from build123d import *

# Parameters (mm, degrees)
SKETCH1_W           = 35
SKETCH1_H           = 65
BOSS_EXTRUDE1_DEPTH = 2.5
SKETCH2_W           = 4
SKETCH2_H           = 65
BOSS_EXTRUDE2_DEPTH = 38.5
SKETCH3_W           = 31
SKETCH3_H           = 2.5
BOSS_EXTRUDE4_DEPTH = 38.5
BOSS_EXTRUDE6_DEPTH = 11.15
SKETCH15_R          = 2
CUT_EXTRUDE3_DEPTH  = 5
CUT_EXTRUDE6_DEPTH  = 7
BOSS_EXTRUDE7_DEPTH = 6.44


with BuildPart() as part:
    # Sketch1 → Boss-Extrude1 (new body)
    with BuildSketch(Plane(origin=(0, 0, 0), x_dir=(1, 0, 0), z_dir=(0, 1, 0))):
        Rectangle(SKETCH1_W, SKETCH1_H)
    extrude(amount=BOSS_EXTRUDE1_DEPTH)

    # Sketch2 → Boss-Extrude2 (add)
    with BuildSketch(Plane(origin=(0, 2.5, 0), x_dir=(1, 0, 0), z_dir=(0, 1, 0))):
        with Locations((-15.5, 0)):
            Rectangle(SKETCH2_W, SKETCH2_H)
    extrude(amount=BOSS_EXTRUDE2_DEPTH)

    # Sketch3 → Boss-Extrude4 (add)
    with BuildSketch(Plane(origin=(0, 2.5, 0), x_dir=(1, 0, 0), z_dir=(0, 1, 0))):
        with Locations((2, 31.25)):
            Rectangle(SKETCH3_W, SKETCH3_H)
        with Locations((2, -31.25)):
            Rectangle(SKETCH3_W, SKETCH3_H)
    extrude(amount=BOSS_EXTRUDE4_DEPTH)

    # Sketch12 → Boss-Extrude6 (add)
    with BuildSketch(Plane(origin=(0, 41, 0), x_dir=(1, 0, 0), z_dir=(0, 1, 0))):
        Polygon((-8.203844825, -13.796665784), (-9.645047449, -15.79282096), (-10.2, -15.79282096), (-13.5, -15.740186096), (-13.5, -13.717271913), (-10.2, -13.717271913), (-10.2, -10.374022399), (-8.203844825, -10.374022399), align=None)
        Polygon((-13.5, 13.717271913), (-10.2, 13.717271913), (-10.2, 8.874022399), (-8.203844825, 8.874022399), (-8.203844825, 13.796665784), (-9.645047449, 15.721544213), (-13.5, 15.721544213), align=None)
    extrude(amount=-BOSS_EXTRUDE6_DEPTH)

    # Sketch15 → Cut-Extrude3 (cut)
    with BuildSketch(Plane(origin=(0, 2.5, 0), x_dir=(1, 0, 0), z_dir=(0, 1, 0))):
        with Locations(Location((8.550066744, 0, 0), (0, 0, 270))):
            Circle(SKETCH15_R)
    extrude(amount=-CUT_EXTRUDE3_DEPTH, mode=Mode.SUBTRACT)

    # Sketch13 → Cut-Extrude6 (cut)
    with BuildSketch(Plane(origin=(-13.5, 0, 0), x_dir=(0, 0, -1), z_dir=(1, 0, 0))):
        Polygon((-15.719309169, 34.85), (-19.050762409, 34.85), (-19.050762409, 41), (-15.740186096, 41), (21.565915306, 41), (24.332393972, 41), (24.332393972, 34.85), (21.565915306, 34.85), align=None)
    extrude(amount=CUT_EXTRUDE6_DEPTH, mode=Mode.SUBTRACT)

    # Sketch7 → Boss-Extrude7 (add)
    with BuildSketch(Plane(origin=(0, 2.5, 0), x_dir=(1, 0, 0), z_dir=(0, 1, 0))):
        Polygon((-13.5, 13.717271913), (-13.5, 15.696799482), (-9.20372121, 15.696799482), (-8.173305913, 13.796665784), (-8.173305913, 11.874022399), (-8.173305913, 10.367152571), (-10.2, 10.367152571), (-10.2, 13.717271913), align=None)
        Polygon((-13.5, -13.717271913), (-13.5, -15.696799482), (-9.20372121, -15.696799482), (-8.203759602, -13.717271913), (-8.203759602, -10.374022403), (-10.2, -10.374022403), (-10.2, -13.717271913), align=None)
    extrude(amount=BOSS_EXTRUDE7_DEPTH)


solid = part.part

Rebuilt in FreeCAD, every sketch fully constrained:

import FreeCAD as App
import Part
import Sketcher

V = App.Vector

doc = App.newDocument("Part")
body = doc.addObject("PartDesign::Body", "Body")

# Sketch on XZ plane
sketch1 = body.newObject("Sketcher::SketchObject", "Sketch")
sketch1.AttachmentSupport = (doc.getObject("XZ_Plane"), [""])
sketch1.MapMode = "FlatFace"
sketch1.addGeometry(Part.LineSegment(V(-18, -32, 0), V(-18, 32, 0)), False)
sketch1.addGeometry(Part.LineSegment(V(-18, 32, 0), V(18, 32, 0)), False)
sketch1.addGeometry(Part.LineSegment(V(18, 32, 0), V(18, -32, 0)), False)
sketch1.addGeometry(Part.LineSegment(V(18, -32, 0), V(-18, -32, 0)), False)
sketch1.addConstraint(Sketcher.Constraint("Coincident", 0, 2, 1, 1))
sketch1.addConstraint(Sketcher.Constraint("Coincident", 1, 2, 2, 1))
sketch1.addConstraint(Sketcher.Constraint("Coincident", 2, 2, 3, 1))
sketch1.addConstraint(Sketcher.Constraint("Coincident", 3, 2, 0, 1))
sketch1.addConstraint(Sketcher.Constraint("Vertical", 0))
sketch1.addConstraint(Sketcher.Constraint("Horizontal", 1))
sketch1.addConstraint(Sketcher.Constraint("Vertical", 2))
sketch1.addConstraint(Sketcher.Constraint("Horizontal", 3))
sketch1.addConstraint(Sketcher.Constraint("Symmetric", 0, 2, 2, 2, -1, 1))
sketch1.addConstraint(Sketcher.Constraint("DistanceX", 1, 1, 1, 2, 35.0))
sketch1.addConstraint(Sketcher.Constraint("DistanceY", 0, 1, 0, 2, 65.0))
pad1 = body.newObject("PartDesign::Pad", "Pad")
pad1.Profile = sketch1
pad1.Length = 2.5
pad1.Reversed = True

# Sketch on XZ plane
sketch2 = body.newObject("Sketcher::SketchObject", "Sketch001")
sketch2.AttachmentSupport = (doc.getObject("XZ_Plane"), [""])
sketch2.MapMode = "FlatFace"
sketch2.AttachmentOffset = App.Placement(V(0, 0, -2.5), App.Rotation())
sketch2.addGeometry(Part.LineSegment(V(-17.5, -32.5, 0), V(-17.5, 32.5, 0)), False)
sketch2.addGeometry(Part.LineSegment(V(-17.5, 32.5, 0), V(-13.5, 32.5, 0)), False)
sketch2.addGeometry(Part.LineSegment(V(-13.5, 32.5, 0), V(-13.5, -32.5, 0)), False)
sketch2.addGeometry(Part.LineSegment(V(-13.5, -32.5, 0), V(-17.5, -32.5, 0)), False)
sketch2.addConstraint(Sketcher.Constraint("Coincident", 0, 2, 1, 1))
sketch2.addConstraint(Sketcher.Constraint("Coincident", 1, 2, 2, 1))
sketch2.addConstraint(Sketcher.Constraint("Coincident", 2, 2, 3, 1))
sketch2.addConstraint(Sketcher.Constraint("Coincident", 3, 2, 0, 1))
sketch2.addConstraint(Sketcher.Constraint("Vertical", 0))
sketch2.addConstraint(Sketcher.Constraint("Horizontal", 1))
sketch2.addConstraint(Sketcher.Constraint("Vertical", 2))
sketch2.addConstraint(Sketcher.Constraint("Horizontal", 3))
sketch2.addConstraint(Sketcher.Constraint("DistanceX", 1, 1, 1, 2, 4.0))
sketch2.addConstraint(Sketcher.Constraint("DistanceY", 0, 1, 0, 2, 65.0))
sketch2.addConstraint(Sketcher.Constraint("DistanceX", 0, 2, -1, 1, 17.5))
sketch2.addConstraint(Sketcher.Constraint("DistanceY", -1, 1, 0, 2, 32.5))
pad2 = body.newObject("PartDesign::Pad", "Pad001")
pad2.Profile = sketch2
pad2.Length = 38.5
pad2.Reversed = True

# Sketch on XZ plane
sketch3 = body.newObject("Sketcher::SketchObject", "Sketch002")
sketch3.AttachmentSupport = (doc.getObject("XZ_Plane"), [""])
sketch3.MapMode = "FlatFace"
sketch3.AttachmentOffset = App.Placement(V(0, 0, -2.5), App.Rotation())
sketch3.addGeometry(Part.LineSegment(V(-13.5, -32.5, 0), V(-13.5, -30, 0)), False)
sketch3.addGeometry(Part.LineSegment(V(-13.5, -30, 0), V(17.5, -30, 0)), False)
sketch3.addGeometry(Part.LineSegment(V(17.5, -30, 0), V(17.5, -32.5, 0)), False)
sketch3.addGeometry(Part.LineSegment(V(17.5, -32.5, 0), V(-13.5, -32.5, 0)), False)
sketch3.addGeometry(Part.LineSegment(V(-13.5, 30, 0), V(-13.5, 32.5, 0)), False)
sketch3.addGeometry(Part.LineSegment(V(-13.5, 32.5, 0), V(17.5, 32.5, 0)), False)
sketch3.addGeometry(Part.LineSegment(V(17.5, 32.5, 0), V(17.5, 30, 0)), False)
sketch3.addGeometry(Part.LineSegment(V(17.5, 30, 0), V(-13.5, 30, 0)), False)
sketch3.addConstraint(Sketcher.Constraint("Coincident", 0, 2, 1, 1))
sketch3.addConstraint(Sketcher.Constraint("Coincident", 1, 2, 2, 1))
sketch3.addConstraint(Sketcher.Constraint("Coincident", 2, 2, 3, 1))
sketch3.addConstraint(Sketcher.Constraint("Coincident", 3, 2, 0, 1))
sketch3.addConstraint(Sketcher.Constraint("Coincident", 4, 2, 5, 1))
sketch3.addConstraint(Sketcher.Constraint("Coincident", 5, 2, 6, 1))
sketch3.addConstraint(Sketcher.Constraint("Coincident", 6, 2, 7, 1))
sketch3.addConstraint(Sketcher.Constraint("Coincident", 7, 2, 4, 1))
sketch3.addConstraint(Sketcher.Constraint("Vertical", 0))
sketch3.addConstraint(Sketcher.Constraint("Horizontal", 1))
sketch3.addConstraint(Sketcher.Constraint("Vertical", 2))
sketch3.addConstraint(Sketcher.Constraint("Horizontal", 3))
sketch3.addConstraint(Sketcher.Constraint("Vertical", 4))
sketch3.addConstraint(Sketcher.Constraint("Horizontal", 5))
sketch3.addConstraint(Sketcher.Constraint("Vertical", 6))
sketch3.addConstraint(Sketcher.Constraint("Horizontal", 7))
sketch3.addConstraint(Sketcher.Constraint("Symmetric", 3, 2, 4, 2, -1))
sketch3.addConstraint(Sketcher.Constraint("Symmetric", 1, 2, 6, 2, -1))
sketch3.addConstraint(Sketcher.Constraint("DistanceX", 1, 1, 1, 2, 31.0))
sketch3.addConstraint(Sketcher.Constraint("DistanceY", 0, 1, 0, 2, 2.5))
sketch3.addConstraint(Sketcher.Constraint("DistanceY", 0, 2, -1, 1, 30.0))
sketch3.addConstraint(Sketcher.Constraint("DistanceX", 0, 2, -1, 1, 13.5))
pad3 = body.newObject("PartDesign::Pad", "Pad002")
pad3.Profile = sketch3
pad3.Length = 38.5
pad3.Reversed = True

# Sketch on XZ plane
sketch4 = body.newObject("Sketcher::SketchObject", "Sketch003")
sketch4.AttachmentSupport = (doc.getObject("XZ_Plane"), [""])
sketch4.MapMode = "FlatFace"
sketch4.AttachmentOffset = App.Placement(V(0, 0, -41), App.Rotation())
sketch4.addGeometry(Part.LineSegment(V(-9.6, 15.8, 0), V(-8.2, 13.8, 0)), False)
sketch4.addGeometry(Part.LineSegment(V(-8.2, 13.8, 0), V(-8.2, 10.4, 0)), False)
sketch4.addGeometry(Part.LineSegment(V(-8.2, 10.4, 0), V(-10.2, 10.4, 0)), False)
sketch4.addGeometry(Part.LineSegment(V(-10.2, 10.4, 0), V(-10.2, 13.7, 0)), False)
sketch4.addGeometry(Part.LineSegment(V(-10.2, 13.7, 0), V(-13.5, 13.7, 0)), False)
sketch4.addGeometry(Part.LineSegment(V(-13.5, 13.7, 0), V(-13.5, 15.7, 0)), False)
sketch4.addGeometry(Part.LineSegment(V(-13.5, 15.7, 0), V(-10.2, 15.8, 0)), False)
sketch4.addGeometry(Part.LineSegment(V(-10.2, 15.8, 0), V(-9.6, 15.8, 0)), False)
sketch4.addGeometry(Part.LineSegment(V(-13.5, -13.7, 0), V(-10.2, -13.7, 0)), False)
sketch4.addGeometry(Part.LineSegment(V(-10.2, -13.7, 0), V(-10.2, -8.9, 0)), False)
sketch4.addGeometry(Part.LineSegment(V(-10.2, -8.9, 0), V(-8.2, -8.9, 0)), False)
sketch4.addGeometry(Part.LineSegment(V(-8.2, -8.9, 0), V(-8.2, -13.8, 0)), False)
sketch4.addGeometry(Part.LineSegment(V(-8.2, -13.8, 0), V(-9.6, -15.7, 0)), False)
sketch4.addGeometry(Part.LineSegment(V(-9.6, -15.7, 0), V(-13.5, -15.7, 0)), False)
sketch4.addGeometry(Part.LineSegment(V(-13.5, -15.7, 0), V(-13.5, -13.7, 0)), False)
sketch4.addConstraint(Sketcher.Constraint("Coincident", 0, 2, 1, 1))
sketch4.addConstraint(Sketcher.Constraint("Coincident", 1, 2, 2, 1))
sketch4.addConstraint(Sketcher.Constraint("Coincident", 2, 2, 3, 1))
sketch4.addConstraint(Sketcher.Constraint("Coincident", 3, 2, 4, 1))
sketch4.addConstraint(Sketcher.Constraint("Coincident", 4, 2, 5, 1))
sketch4.addConstraint(Sketcher.Constraint("Coincident", 5, 2, 6, 1))
sketch4.addConstraint(Sketcher.Constraint("Coincident", 6, 2, 7, 1))
sketch4.addConstraint(Sketcher.Constraint("Coincident", 7, 2, 0, 1))
sketch4.addConstraint(Sketcher.Constraint("Coincident", 8, 2, 9, 1))
sketch4.addConstraint(Sketcher.Constraint("Coincident", 9, 2, 10, 1))
sketch4.addConstraint(Sketcher.Constraint("Coincident", 10, 2, 11, 1))
sketch4.addConstraint(Sketcher.Constraint("Coincident", 11, 2, 12, 1))
sketch4.addConstraint(Sketcher.Constraint("Coincident", 12, 2, 13, 1))
sketch4.addConstraint(Sketcher.Constraint("Coincident", 13, 2, 14, 1))
sketch4.addConstraint(Sketcher.Constraint("Coincident", 14, 2, 8, 1))
sketch4.addConstraint(Sketcher.Constraint("Vertical", 1))
sketch4.addConstraint(Sketcher.Constraint("Horizontal", 2))
sketch4.addConstraint(Sketcher.Constraint("Vertical", 3))
sketch4.addConstraint(Sketcher.Constraint("Horizontal", 4))
sketch4.addConstraint(Sketcher.Constraint("Vertical", 5))
sketch4.addConstraint(Sketcher.Constraint("Horizontal", 7))
sketch4.addConstraint(Sketcher.Constraint("Horizontal", 8))
sketch4.addConstraint(Sketcher.Constraint("Vertical", 9))
sketch4.addConstraint(Sketcher.Constraint("Horizontal", 10))
sketch4.addConstraint(Sketcher.Constraint("Vertical", 11))
sketch4.addConstraint(Sketcher.Constraint("Horizontal", 13))
sketch4.addConstraint(Sketcher.Constraint("Vertical", 14))
sketch4.addConstraint(Sketcher.Constraint("Symmetric", 3, 2, 8, 2, -1))
sketch4.addConstraint(Sketcher.Constraint("Symmetric", 0, 2, 11, 2, -1))
sketch4.addConstraint(Sketcher.Constraint("Vertical", 3, 2, 6, 2))
sketch4.addConstraint(Sketcher.Constraint("Vertical", 7, 2, 12, 2))
sketch4.addConstraint(Sketcher.Constraint("Vertical", 5, 2, 13, 2))
sketch4.addConstraint(Sketcher.Constraint("DistanceX", 4, 2, 4, 1, 3.3))
sketch4.addConstraint(Sketcher.Constraint("DistanceX", 2, 2, -1, 1, 10.2))
sketch4.addConstraint(Sketcher.Constraint("DistanceY", 3, 1, 3, 2, 3.34325))
sketch4.addConstraint(Sketcher.Constraint("DistanceY", 9, 1, 9, 2, 4.84325))
sketch4.addConstraint(Sketcher.Constraint("DistanceY", 2, 2, 6, 2, 5.418799))
sketch4.addConstraint(Sketcher.Constraint("Distance", 6, 3.30042))
sketch4.addConstraint(Sketcher.Constraint("DistanceX", 2, 2, 2, 1, 1.996155))
sketch4.addConstraint(Sketcher.Constraint("DistanceX", 7, 1, 7, 2, 0.554953))
sketch4.addConstraint(Sketcher.Constraint("DistanceY", 1, 2, 1, 1, 3.422643))
sketch4.addConstraint(Sketcher.Constraint("DistanceY", 14, 1, 14, 2, 2.004272))
sketch4.addConstraint(Sketcher.Constraint("DistanceY", -1, 1, 3, 2, 13.717272))
pad4 = body.newObject("PartDesign::Pad", "Pad003")
pad4.Profile = sketch4
pad4.Length = 11.15

# Sketch on XZ plane
sketch5 = body.newObject("Sketcher::SketchObject", "Sketch004")
sketch5.AttachmentSupport = (doc.getObject("XZ_Plane"), [""])
sketch5.MapMode = "FlatFace"
sketch5.AttachmentOffset = App.Placement(V(0, 0, -2.5), App.Rotation())
sketch5.addGeometry(Part.Circle(V(8.6, 0, 0), V(0, 0, 1), 2), False)
sketch5.addConstraint(Sketcher.Constraint("PointOnObject", 0, 3, -1))
sketch5.addConstraint(Sketcher.Constraint("Diameter", 0, 4.0))
sketch5.addConstraint(Sketcher.Constraint("DistanceX", -1, 1, 0, 3, 8.550067))
pocket1 = body.newObject("PartDesign::Pocket", "Pocket")
pocket1.Profile = sketch5
pocket1.Length = 5
pocket1.Reversed = True

# Sketch on YZ plane
sketch6 = body.newObject("Sketcher::SketchObject", "Sketch005")
sketch6.AttachmentSupport = (doc.getObject("YZ_Plane"), [""])
sketch6.MapMode = "FlatFace"
sketch6.AttachmentOffset = App.Placement(V(0, 0, -13.5), App.Rotation())
sketch6.addGeometry(Part.LineSegment(V(35, 19, 0), V(35, -24, 0)), False)
sketch6.addGeometry(Part.LineSegment(V(35, -24, 0), V(41, -24, 0)), False)
sketch6.addGeometry(Part.LineSegment(V(41, -24, 0), V(41, 19, 0)), False)
sketch6.addGeometry(Part.LineSegment(V(41, 19, 0), V(35, 19, 0)), False)
sketch6.addConstraint(Sketcher.Constraint("Coincident", 0, 2, 1, 1))
sketch6.addConstraint(Sketcher.Constraint("Coincident", 1, 2, 2, 1))
sketch6.addConstraint(Sketcher.Constraint("Coincident", 2, 2, 3, 1))
sketch6.addConstraint(Sketcher.Constraint("Coincident", 3, 2, 0, 1))
sketch6.addConstraint(Sketcher.Constraint("Vertical", 0))
sketch6.addConstraint(Sketcher.Constraint("Horizontal", 1))
sketch6.addConstraint(Sketcher.Constraint("Vertical", 2))
sketch6.addConstraint(Sketcher.Constraint("Horizontal", 3))
sketch6.addConstraint(Sketcher.Constraint("DistanceX", -1, 1, 1, 2, 41.0))
sketch6.addConstraint(Sketcher.Constraint("DistanceX", 1, 1, 1, 2, 6.15))
sketch6.addConstraint(Sketcher.Constraint("DistanceY", 0, 2, 0, 1, 43.383156))
sketch6.addConstraint(Sketcher.Constraint("DistanceY", 0, 2, -1, 1, 24.332394))
pocket2 = body.newObject("PartDesign::Pocket", "Pocket001")
pocket2.Profile = sketch6
pocket2.Length = 7
pocket2.Reversed = True

# Sketch on XZ plane
sketch7 = body.newObject("Sketcher::SketchObject", "Sketch006")
sketch7.AttachmentSupport = (doc.getObject("XZ_Plane"), [""])
sketch7.MapMode = "FlatFace"
sketch7.AttachmentOffset = App.Placement(V(0, 0, -2.5), App.Rotation())
sketch7.addGeometry(Part.LineSegment(V(-13.5, -15.7, 0), V(-13.5, -13.7, 0)), False)
sketch7.addGeometry(Part.LineSegment(V(-13.5, -13.7, 0), V(-10.2, -13.7, 0)), False)
sketch7.addGeometry(Part.LineSegment(V(-10.2, -13.7, 0), V(-10.2, -10.4, 0)), False)
sketch7.addGeometry(Part.LineSegment(V(-10.2, -10.4, 0), V(-8.2, -10.4, 0)), False)
sketch7.addGeometry(Part.LineSegment(V(-8.2, -10.4, 0), V(-8.2, -13.8, 0)), False)
sketch7.addGeometry(Part.LineSegment(V(-8.2, -13.8, 0), V(-9.2, -15.7, 0)), False)
sketch7.addGeometry(Part.LineSegment(V(-9.2, -15.7, 0), V(-13.5, -15.7, 0)), False)
sketch7.addGeometry(Part.LineSegment(V(-13.5, 13.7, 0), V(-13.5, 15.7, 0)), False)
sketch7.addGeometry(Part.LineSegment(V(-13.5, 15.7, 0), V(-9.2, 15.7, 0)), False)
sketch7.addGeometry(Part.LineSegment(V(-9.2, 15.7, 0), V(-8.2, 13.7, 0)), False)
sketch7.addGeometry(Part.LineSegment(V(-8.2, 13.7, 0), V(-8.2, 10.4, 0)), False)
sketch7.addGeometry(Part.LineSegment(V(-8.2, 10.4, 0), V(-10.2, 10.4, 0)), False)
sketch7.addGeometry(Part.LineSegment(V(-10.2, 10.4, 0), V(-10.2, 13.7, 0)), False)
sketch7.addGeometry(Part.LineSegment(V(-10.2, 13.7, 0), V(-13.5, 13.7, 0)), False)
sketch7.addConstraint(Sketcher.Constraint("Coincident", 0, 2, 1, 1))
sketch7.addConstraint(Sketcher.Constraint("Coincident", 1, 2, 2, 1))
sketch7.addConstraint(Sketcher.Constraint("Coincident", 2, 2, 3, 1))
sketch7.addConstraint(Sketcher.Constraint("Coincident", 3, 2, 4, 1))
sketch7.addConstraint(Sketcher.Constraint("Coincident", 4, 2, 5, 1))
sketch7.addConstraint(Sketcher.Constraint("Coincident", 5, 2, 6, 1))
sketch7.addConstraint(Sketcher.Constraint("Coincident", 6, 2, 0, 1))
sketch7.addConstraint(Sketcher.Constraint("Coincident", 7, 2, 8, 1))
sketch7.addConstraint(Sketcher.Constraint("Coincident", 8, 2, 9, 1))
sketch7.addConstraint(Sketcher.Constraint("Coincident", 9, 2, 10, 1))
sketch7.addConstraint(Sketcher.Constraint("Coincident", 10, 2, 11, 1))
sketch7.addConstraint(Sketcher.Constraint("Coincident", 11, 2, 12, 1))
sketch7.addConstraint(Sketcher.Constraint("Coincident", 12, 2, 13, 1))
sketch7.addConstraint(Sketcher.Constraint("Coincident", 13, 2, 7, 1))
sketch7.addConstraint(Sketcher.Constraint("Vertical", 0))
sketch7.addConstraint(Sketcher.Constraint("Horizontal", 1))
sketch7.addConstraint(Sketcher.Constraint("Vertical", 2))
sketch7.addConstraint(Sketcher.Constraint("Horizontal", 3))
sketch7.addConstraint(Sketcher.Constraint("Vertical", 4))
sketch7.addConstraint(Sketcher.Constraint("Horizontal", 6))
sketch7.addConstraint(Sketcher.Constraint("Vertical", 7))
sketch7.addConstraint(Sketcher.Constraint("Horizontal", 8))
sketch7.addConstraint(Sketcher.Constraint("Vertical", 10))
sketch7.addConstraint(Sketcher.Constraint("Horizontal", 11))
sketch7.addConstraint(Sketcher.Constraint("Vertical", 12))
sketch7.addConstraint(Sketcher.Constraint("Horizontal", 13))
sketch7.addConstraint(Sketcher.Constraint("Symmetric", 6, 2, 7, 2, -1))
sketch7.addConstraint(Sketcher.Constraint("Symmetric", 1, 2, 12, 2, -1))
sketch7.addConstraint(Sketcher.Constraint("Horizontal", 9, 2, 12, 2))
sketch7.addConstraint(Sketcher.Constraint("Vertical", 5, 2, 8, 2))
sketch7.addConstraint(Sketcher.Constraint("DistanceX", 1, 1, 1, 2, 3.3))
sketch7.addConstraint(Sketcher.Constraint("DistanceX", 0, 2, -1, 1, 13.5))
sketch7.addConstraint(Sketcher.Constraint("DistanceX", 6, 2, 6, 1, 4.296279))
sketch7.addConstraint(Sketcher.Constraint("DistanceX", 11, 2, 11, 1, 1.99624))
sketch7.addConstraint(Sketcher.Constraint("DistanceY", 2, 1, 2, 2, 3.350119))
sketch7.addConstraint(Sketcher.Constraint("DistanceY", 10, 2, 10, 1, 3.34325))
sketch7.addConstraint(Sketcher.Constraint("DistanceY", 5, 2, -1, 1, 15.696799))
sketch7.addConstraint(Sketcher.Constraint("Distance", 5, 2.161542))
sketch7.addConstraint(Sketcher.Constraint("Distance", 9, 2.217758))
sketch7.addConstraint(Sketcher.Constraint("DistanceX", 3, 1, 3, 2, 2.026694))
pad5 = body.newObject("PartDesign::Pad", "Pad004")
pad5.Profile = sketch7
pad5.Length = 6.44
pad5.Reversed = True

doc.recompute()
